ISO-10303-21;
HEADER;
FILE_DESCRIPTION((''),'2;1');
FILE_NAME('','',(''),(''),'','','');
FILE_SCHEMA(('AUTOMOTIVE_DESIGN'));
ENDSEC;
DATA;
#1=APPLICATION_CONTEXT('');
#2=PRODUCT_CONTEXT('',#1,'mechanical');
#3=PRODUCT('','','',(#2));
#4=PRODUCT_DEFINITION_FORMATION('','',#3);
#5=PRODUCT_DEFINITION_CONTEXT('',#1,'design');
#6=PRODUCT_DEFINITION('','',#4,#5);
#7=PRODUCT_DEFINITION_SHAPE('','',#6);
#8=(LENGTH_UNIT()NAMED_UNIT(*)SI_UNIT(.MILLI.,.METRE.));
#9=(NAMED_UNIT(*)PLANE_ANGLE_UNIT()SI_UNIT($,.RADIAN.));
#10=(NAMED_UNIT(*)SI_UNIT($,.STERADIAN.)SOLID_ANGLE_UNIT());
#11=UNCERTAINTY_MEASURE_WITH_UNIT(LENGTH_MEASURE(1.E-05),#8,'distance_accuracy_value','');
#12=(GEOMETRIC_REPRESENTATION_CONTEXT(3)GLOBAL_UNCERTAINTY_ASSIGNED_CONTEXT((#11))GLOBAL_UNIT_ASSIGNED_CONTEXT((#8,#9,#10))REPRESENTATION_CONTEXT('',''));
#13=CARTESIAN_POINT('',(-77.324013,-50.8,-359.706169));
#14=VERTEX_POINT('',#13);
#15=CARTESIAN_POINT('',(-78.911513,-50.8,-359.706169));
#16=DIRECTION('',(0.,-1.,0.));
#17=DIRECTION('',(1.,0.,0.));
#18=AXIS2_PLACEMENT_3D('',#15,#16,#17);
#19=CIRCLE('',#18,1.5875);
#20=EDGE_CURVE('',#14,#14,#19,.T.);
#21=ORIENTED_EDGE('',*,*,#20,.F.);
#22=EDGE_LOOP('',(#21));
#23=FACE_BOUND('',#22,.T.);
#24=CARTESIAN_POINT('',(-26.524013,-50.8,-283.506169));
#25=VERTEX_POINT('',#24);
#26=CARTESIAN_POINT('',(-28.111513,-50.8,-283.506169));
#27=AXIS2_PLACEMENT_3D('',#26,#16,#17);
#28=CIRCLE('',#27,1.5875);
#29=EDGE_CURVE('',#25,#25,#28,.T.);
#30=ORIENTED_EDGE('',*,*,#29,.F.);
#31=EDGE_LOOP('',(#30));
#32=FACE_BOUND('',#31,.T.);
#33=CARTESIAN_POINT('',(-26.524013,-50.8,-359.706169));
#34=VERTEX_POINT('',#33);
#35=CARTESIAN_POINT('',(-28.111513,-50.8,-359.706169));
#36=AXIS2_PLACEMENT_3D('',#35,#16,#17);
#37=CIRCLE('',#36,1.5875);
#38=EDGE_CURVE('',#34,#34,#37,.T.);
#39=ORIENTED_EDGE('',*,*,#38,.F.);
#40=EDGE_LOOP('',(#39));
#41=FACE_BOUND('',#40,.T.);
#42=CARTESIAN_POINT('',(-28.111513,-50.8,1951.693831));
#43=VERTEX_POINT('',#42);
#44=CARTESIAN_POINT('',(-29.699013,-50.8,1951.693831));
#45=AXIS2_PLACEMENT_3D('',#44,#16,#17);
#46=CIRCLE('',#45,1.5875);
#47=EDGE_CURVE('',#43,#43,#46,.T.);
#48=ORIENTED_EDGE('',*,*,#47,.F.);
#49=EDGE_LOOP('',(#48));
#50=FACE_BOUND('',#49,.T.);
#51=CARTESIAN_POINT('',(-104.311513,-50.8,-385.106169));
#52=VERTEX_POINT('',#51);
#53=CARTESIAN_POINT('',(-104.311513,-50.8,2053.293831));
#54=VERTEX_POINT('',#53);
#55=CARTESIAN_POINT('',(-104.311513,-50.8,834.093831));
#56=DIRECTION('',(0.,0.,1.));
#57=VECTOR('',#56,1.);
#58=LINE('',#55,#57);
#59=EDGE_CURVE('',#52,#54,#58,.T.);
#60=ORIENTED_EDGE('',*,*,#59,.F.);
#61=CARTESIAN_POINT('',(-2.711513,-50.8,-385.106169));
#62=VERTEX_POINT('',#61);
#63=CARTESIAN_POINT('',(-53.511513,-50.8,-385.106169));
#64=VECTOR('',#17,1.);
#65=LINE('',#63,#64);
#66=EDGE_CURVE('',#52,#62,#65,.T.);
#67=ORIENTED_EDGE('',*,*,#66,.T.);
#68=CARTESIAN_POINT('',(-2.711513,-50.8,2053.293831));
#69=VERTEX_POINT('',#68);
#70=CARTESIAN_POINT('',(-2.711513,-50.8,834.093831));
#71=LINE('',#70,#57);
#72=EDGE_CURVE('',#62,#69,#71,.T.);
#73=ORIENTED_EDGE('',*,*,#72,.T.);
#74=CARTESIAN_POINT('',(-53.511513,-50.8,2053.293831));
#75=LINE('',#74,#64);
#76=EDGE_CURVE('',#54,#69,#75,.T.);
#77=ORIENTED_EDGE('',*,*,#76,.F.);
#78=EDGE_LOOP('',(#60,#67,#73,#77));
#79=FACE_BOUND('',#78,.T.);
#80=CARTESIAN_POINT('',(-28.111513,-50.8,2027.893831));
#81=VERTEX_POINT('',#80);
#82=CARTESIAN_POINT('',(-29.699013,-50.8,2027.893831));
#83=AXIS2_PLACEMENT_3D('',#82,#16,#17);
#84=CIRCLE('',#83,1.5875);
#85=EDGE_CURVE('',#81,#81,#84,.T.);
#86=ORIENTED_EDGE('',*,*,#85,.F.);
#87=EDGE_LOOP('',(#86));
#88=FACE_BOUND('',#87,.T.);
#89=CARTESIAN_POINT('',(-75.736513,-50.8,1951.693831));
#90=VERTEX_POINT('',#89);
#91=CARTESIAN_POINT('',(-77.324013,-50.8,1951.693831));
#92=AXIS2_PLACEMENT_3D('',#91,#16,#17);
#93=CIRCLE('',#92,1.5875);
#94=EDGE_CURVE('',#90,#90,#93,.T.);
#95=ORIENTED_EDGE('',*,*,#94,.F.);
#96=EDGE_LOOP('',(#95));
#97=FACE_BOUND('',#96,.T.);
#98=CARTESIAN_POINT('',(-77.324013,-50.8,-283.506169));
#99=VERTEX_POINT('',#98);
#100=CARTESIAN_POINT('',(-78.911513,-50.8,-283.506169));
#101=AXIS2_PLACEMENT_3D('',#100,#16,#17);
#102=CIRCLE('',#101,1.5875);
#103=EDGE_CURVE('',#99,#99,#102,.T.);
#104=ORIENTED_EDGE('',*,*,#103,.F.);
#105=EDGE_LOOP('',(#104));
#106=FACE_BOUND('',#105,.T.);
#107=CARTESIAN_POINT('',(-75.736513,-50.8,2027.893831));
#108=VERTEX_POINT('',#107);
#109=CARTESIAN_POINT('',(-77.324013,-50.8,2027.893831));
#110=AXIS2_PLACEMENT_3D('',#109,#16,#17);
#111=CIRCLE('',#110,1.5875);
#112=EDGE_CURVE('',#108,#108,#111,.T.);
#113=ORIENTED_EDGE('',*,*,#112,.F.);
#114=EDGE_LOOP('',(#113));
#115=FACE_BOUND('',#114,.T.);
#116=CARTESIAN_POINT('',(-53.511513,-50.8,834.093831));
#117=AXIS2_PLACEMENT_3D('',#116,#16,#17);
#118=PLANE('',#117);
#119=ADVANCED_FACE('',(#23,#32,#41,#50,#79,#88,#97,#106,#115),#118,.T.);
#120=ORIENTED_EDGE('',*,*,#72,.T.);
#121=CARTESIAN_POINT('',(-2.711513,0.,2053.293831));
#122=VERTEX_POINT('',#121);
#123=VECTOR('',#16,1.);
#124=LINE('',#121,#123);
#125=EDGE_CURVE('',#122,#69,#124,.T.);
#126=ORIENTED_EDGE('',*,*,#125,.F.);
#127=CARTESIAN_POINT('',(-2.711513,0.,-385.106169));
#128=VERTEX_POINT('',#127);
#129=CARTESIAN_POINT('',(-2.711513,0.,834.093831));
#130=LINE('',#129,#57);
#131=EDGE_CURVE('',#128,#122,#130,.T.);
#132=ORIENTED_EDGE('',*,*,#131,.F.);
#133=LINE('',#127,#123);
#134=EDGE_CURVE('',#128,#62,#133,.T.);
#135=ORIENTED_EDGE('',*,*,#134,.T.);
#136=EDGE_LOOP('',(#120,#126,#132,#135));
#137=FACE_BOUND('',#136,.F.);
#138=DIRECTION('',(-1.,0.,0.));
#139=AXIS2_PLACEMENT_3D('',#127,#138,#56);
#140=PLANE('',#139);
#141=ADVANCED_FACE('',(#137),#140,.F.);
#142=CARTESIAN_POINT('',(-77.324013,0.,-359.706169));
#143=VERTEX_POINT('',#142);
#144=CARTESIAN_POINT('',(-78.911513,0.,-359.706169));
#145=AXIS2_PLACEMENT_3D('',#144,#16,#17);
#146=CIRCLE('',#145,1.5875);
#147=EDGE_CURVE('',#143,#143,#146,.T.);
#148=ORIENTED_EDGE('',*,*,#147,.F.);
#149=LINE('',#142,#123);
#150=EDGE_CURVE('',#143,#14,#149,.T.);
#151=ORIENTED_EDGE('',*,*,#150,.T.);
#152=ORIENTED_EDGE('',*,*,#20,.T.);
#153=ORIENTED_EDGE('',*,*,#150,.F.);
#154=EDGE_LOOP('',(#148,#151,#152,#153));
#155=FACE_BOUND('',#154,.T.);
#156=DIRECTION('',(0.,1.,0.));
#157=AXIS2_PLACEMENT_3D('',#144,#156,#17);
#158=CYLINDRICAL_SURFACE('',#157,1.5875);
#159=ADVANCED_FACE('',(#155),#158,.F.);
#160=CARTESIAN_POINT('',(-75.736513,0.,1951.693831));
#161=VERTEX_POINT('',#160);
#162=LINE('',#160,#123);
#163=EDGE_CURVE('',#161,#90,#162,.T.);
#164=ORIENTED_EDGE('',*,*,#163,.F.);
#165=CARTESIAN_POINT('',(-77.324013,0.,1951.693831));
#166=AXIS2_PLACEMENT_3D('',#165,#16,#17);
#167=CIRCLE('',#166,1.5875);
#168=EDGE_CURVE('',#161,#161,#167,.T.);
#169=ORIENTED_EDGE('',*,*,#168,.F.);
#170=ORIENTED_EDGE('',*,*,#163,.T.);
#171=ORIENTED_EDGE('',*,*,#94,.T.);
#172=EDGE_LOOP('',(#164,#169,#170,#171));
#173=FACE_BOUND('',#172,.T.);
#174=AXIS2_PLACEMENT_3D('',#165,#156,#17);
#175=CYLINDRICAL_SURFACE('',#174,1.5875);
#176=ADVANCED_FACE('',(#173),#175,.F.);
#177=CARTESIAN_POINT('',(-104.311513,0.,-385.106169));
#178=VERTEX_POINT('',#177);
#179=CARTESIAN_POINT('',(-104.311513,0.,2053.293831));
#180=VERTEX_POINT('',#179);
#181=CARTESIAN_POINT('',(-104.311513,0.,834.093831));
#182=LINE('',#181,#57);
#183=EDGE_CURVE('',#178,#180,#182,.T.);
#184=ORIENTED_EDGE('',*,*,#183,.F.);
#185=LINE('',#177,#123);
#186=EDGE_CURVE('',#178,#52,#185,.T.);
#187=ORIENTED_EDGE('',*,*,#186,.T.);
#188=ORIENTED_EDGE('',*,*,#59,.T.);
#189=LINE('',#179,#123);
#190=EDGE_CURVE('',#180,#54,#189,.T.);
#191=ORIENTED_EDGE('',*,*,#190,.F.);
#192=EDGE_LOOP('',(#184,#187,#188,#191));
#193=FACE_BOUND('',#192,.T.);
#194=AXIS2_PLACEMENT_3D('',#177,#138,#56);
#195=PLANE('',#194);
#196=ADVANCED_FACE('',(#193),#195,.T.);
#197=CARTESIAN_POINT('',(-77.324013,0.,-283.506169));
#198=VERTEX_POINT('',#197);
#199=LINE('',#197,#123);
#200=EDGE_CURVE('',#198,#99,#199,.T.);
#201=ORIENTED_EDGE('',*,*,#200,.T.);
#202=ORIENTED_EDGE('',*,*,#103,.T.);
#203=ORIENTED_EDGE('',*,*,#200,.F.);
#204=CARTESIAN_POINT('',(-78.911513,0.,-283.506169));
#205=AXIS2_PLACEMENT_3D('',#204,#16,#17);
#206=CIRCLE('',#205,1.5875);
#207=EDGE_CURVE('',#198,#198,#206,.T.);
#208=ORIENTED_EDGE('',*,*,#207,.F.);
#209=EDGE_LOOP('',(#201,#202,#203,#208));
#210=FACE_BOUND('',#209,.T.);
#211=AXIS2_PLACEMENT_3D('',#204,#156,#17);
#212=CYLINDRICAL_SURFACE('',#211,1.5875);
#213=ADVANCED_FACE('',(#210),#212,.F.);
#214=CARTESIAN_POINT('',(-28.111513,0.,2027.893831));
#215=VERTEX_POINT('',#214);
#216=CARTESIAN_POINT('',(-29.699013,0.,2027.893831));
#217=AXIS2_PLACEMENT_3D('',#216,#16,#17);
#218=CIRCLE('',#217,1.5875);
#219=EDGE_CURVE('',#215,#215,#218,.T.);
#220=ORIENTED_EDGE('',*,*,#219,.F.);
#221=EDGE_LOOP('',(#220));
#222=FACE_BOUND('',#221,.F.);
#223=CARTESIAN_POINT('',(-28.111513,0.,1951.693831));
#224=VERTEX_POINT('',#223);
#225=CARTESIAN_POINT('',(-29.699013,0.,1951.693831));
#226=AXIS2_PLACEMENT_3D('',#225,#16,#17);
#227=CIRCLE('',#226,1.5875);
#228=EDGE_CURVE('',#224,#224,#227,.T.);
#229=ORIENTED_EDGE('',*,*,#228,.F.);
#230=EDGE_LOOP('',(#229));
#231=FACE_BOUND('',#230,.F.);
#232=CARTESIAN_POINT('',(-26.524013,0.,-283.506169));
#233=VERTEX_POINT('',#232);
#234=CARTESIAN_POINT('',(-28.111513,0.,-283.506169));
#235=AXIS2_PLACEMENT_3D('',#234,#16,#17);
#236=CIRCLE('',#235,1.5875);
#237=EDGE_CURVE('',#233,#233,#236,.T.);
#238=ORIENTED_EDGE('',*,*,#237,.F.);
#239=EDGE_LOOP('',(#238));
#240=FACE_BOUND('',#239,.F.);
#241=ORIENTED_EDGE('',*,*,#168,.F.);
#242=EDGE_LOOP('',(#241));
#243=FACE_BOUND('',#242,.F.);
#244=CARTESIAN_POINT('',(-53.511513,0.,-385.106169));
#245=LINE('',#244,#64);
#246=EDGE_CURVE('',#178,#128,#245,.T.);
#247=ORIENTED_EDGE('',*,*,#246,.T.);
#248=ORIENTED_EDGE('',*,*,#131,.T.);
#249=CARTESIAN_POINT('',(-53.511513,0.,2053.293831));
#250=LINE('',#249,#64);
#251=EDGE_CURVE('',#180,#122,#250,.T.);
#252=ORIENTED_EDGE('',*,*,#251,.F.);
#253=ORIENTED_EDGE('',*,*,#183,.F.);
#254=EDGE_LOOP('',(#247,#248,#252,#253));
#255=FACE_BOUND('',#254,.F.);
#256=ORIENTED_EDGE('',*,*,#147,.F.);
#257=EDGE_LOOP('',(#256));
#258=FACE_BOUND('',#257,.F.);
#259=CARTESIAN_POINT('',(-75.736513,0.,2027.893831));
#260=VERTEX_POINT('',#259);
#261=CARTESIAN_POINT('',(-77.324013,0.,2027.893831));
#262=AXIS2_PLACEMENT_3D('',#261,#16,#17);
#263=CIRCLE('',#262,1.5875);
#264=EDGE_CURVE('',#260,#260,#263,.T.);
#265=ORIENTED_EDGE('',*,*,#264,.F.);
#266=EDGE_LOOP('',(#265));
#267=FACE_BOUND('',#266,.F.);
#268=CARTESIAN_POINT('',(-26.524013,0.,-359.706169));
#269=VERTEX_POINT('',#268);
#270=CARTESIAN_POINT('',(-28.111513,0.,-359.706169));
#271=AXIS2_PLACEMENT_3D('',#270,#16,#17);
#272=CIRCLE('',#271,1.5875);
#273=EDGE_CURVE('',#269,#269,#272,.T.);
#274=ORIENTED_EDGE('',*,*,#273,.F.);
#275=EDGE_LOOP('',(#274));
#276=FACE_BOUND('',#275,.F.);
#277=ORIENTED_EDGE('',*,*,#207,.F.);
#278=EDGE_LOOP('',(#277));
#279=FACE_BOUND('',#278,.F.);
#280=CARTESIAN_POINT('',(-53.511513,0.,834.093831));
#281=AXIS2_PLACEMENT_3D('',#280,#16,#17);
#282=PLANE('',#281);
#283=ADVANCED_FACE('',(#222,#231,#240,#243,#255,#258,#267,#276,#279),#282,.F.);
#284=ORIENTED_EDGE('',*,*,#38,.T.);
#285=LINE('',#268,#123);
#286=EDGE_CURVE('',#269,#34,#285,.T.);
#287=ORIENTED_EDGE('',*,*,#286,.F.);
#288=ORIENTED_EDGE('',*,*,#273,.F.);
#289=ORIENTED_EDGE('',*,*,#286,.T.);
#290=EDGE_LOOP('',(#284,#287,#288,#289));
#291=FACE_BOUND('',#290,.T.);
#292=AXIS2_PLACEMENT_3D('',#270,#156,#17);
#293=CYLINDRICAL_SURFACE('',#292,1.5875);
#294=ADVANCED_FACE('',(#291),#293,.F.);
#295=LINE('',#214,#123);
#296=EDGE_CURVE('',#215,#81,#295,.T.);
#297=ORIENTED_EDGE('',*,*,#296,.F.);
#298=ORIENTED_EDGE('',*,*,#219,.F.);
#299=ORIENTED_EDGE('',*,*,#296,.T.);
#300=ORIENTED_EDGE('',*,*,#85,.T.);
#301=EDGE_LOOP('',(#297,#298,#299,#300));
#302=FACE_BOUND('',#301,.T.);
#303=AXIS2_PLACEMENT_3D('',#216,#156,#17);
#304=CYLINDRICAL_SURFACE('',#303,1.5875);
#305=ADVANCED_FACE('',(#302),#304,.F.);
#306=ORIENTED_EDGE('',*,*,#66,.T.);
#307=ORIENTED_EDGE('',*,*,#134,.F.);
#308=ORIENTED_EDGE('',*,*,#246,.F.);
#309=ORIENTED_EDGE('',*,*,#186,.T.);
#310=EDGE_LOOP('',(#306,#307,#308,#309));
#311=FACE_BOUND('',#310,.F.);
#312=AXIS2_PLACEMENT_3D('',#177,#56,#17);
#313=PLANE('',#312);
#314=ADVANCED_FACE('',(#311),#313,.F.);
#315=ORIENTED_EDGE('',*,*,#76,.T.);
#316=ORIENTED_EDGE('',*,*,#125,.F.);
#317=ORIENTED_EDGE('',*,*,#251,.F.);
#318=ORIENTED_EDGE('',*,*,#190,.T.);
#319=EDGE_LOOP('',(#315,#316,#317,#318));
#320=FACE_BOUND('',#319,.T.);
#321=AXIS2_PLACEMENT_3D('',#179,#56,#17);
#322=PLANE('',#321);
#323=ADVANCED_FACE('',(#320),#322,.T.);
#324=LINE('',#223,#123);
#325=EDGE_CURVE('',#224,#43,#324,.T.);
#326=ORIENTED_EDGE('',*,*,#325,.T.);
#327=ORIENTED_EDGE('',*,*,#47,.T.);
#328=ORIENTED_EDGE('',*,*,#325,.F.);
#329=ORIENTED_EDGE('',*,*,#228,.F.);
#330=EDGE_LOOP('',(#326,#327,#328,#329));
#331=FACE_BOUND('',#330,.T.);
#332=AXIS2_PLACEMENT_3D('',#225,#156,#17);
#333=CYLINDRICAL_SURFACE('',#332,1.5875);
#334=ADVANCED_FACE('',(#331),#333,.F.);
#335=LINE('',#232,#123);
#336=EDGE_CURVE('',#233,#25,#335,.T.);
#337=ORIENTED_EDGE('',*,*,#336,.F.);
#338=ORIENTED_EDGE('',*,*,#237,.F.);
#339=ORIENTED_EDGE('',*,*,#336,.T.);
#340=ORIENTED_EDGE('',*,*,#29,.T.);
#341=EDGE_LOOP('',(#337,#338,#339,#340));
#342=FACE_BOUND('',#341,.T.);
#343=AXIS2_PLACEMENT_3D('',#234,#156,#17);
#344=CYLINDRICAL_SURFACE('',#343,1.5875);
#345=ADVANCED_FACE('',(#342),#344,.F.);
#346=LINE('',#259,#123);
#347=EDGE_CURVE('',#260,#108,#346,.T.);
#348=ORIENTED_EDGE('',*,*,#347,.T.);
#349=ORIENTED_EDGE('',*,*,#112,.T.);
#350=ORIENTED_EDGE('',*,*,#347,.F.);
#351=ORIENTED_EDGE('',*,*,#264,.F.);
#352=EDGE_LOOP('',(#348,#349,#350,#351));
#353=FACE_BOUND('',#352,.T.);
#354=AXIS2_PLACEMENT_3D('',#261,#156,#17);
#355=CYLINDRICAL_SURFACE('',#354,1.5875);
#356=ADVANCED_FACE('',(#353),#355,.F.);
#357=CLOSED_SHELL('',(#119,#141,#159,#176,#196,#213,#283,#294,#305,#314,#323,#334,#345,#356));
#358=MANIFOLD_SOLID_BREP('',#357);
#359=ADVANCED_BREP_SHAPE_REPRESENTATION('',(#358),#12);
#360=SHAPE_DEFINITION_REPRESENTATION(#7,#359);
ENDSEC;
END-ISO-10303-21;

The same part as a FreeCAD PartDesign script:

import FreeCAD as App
import Part
import Sketcher

V = App.Vector
Q = App.Units.Quantity


def add_polygon(sketch, points):
    """Adds a closed chain of lines whose ends are joined by coincident constraints."""
    first, n = sketch.GeometryCount, len(points)
    for a, b in zip(points, points[1:] + points[:1]):
        sketch.addGeometry(Part.LineSegment(App.Vector(*a, 0), App.Vector(*b, 0)), False)
    for i in range(n):
        sketch.addConstraint(Sketcher.Constraint("Coincident", first + i, 2, first + (i + 1) % n, 1))

doc = App.newDocument("Part")
body = doc.addObject("PartDesign::Body", "Body")

# Sketch on XZ plane
sketch1 = body.newObject("Sketcher::SketchObject", "Sketch")
sketch1.AttachmentSupport = (doc.getObject("XZ_Plane"), [""])
sketch1.MapMode = "FlatFace"
add_polygon(sketch1, [(-104.311513, 2053.293831), (-104.311513, -385.106169), (-2.711513, -385.106169), (-2.711513, 2053.293831)])  # lines 0-3
sketch1.addGeometry(Part.Circle(V(-78.911513, -359.706169, 0), V(0, 0, 1), 1.5875), False)  # 4
sketch1.addGeometry(Part.Circle(V(-78.911513, -283.506169, 0), V(0, 0, 1), 1.5875), False)  # 5
sketch1.addGeometry(Part.Circle(V(-28.111513, -359.706169, 0), V(0, 0, 1), 1.5875), False)  # 6
sketch1.addGeometry(Part.Circle(V(-28.111513, -283.506169, 0), V(0, 0, 1), 1.5875), False)  # 7
sketch1.addGeometry(Part.Circle(V(-77.324013, 1951.693831, 0), V(0, 0, 1), 1.5875), False)  # 8
sketch1.addGeometry(Part.Circle(V(-77.324013, 2027.893831, 0), V(0, 0, 1), 1.5875), False)  # 9
sketch1.addGeometry(Part.Circle(V(-29.699013, 1951.693831, 0), V(0, 0, 1), 1.5875), False)  # 10
sketch1.addGeometry(Part.Circle(V(-29.699013, 2027.893831, 0), V(0, 0, 1), 1.5875), False)  # 11
sketch1.addConstraint([
    Sketcher.Constraint("Vertical", 0),
    Sketcher.Constraint("Horizontal", 1),
    Sketcher.Constraint("Vertical", 2),
    Sketcher.Constraint("Horizontal", 3),
    Sketcher.Constraint("Equal", 4, 5),
    Sketcher.Constraint("Equal", 5, 6),
    Sketcher.Constraint("Equal", 6, 7),
    Sketcher.Constraint("Equal", 7, 8),
    Sketcher.Constraint("Equal", 8, 9),
    Sketcher.Constraint("Equal", 9, 10),
    Sketcher.Constraint("Equal", 10, 11),
    Sketcher.Constraint("Horizontal", 4, 3, 6, 3),
    Sketcher.Constraint("Horizontal", 5, 3, 7, 3),
    Sketcher.Constraint("Horizontal", 8, 3, 10, 3),
    Sketcher.Constraint("Horizontal", 9, 3, 11, 3),
    Sketcher.Constraint("Vertical", 4, 3, 5, 3),
    Sketcher.Constraint("Vertical", 6, 3, 7, 3),
    Sketcher.Constraint("Vertical", 8, 3, 9, 3),
    Sketcher.Constraint("Vertical", 10, 3, 11, 3),
    Sketcher.Constraint("DistanceX", 1, 1, 1, 2, Q("4 in")),
    Sketcher.Constraint("DistanceY", 0, 2, 0, 1, Q("96 in")),
    Sketcher.Constraint("Diameter", 4, Q("0.125 in")),
    Sketcher.Constraint("DistanceY", 4, 3, 5, 3, Q("3 in")),
    Sketcher.Constraint("DistanceX", 4, 3, 6, 3, Q("2 in")),
    Sketcher.Constraint("DistanceY", 5, 3, 8, 3, Q("88 in")),
    Sketcher.Constraint("DistanceY", 8, 3, 9, 3, Q("3 in")),
    Sketcher.Constraint("DistanceX", 0, 2, 4, 3, Q("1 in")),
    Sketcher.Constraint("DistanceY", 0, 2, 4, 3, Q("1 in")),
    Sketcher.Constraint("DistanceX", 5, 3, 8, 3, Q("0.0625 in")),
    Sketcher.Constraint("DistanceX", 8, 3, 10, 3, Q("1.875 in")),
    Sketcher.Constraint("DistanceY", 4, 3, -1, 1, Q("359.706169 mm")),
    Sketcher.Constraint("DistanceX", 4, 3, -1, 1, Q("78.911513 mm")),
])
pad1 = body.newObject("PartDesign::Pad", "Pad")
pad1.Profile = sketch1
pad1.Length = Q("2 in")

doc.recompute()
